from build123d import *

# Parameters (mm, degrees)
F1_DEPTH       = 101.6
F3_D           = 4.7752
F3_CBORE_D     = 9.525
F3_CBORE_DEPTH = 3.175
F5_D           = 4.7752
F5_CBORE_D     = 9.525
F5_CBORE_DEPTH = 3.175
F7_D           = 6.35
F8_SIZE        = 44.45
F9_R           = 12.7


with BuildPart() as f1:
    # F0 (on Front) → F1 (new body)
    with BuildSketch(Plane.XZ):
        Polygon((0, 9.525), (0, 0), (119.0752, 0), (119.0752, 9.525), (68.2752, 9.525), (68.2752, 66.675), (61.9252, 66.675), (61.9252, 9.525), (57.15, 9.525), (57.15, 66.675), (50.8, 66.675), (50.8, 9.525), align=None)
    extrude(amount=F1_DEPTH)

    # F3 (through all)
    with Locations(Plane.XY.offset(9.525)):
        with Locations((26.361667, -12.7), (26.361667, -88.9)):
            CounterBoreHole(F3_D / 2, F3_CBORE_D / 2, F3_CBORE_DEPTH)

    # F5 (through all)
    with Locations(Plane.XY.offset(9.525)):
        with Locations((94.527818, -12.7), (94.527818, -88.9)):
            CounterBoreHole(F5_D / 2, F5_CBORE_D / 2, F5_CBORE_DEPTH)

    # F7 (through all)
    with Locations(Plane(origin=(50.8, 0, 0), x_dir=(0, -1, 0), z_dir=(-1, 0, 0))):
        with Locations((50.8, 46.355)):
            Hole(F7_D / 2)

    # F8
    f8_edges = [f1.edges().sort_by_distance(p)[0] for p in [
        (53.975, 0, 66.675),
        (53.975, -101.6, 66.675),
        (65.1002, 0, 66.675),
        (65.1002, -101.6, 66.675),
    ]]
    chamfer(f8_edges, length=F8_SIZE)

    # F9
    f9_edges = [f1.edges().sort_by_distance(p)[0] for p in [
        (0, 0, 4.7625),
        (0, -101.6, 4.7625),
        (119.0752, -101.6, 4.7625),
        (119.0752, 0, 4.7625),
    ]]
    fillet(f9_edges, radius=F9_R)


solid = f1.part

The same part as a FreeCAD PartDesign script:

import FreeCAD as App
import Part
import Sketcher
from FreeCAD import Vector
Q = App.Units.Quantity


def edges_at(feature, points):
    """Names of the edges that pass closest to the given points."""
    edges = feature.Shape.Edges
    near = lambda p: min(range(len(edges)), key=lambda i: edges[i].distToShape(Part.Vertex(*p))[0])
    return sorted({f"Edge{near(p) + 1}" for p in points})


def add_polygon(sketch, points):
    """Adds a closed chain of lines whose ends are joined by coincident constraints."""
    first, n = sketch.GeometryCount, len(points)
    for a, b in zip(points, points[1:] + points[:1]):
        sketch.addGeometry(Part.LineSegment(App.Vector(*a, 0), App.Vector(*b, 0)), False)
    for i in range(n):
        sketch.addConstraint(Sketcher.Constraint("Coincident", first + i, 2, first + (i + 1) % n, 1))

doc = App.newDocument("Part")
body = doc.addObject("PartDesign::Body", "Body")

# Sketch on XZ plane
sketch1 = body.newObject("Sketcher::SketchObject", "Sketch")
sketch1.AttachmentSupport = (doc.getObject("XZ_Plane"), [""])
sketch1.MapMode = "FlatFace"
add_polygon(sketch1, [(0, 9.5), (0, 0), (119.1, 0), (119.1, 9.5), (68.3, 9.5), (68.3, 66.7), (61.9, 66.7), (61.9, 9.5), (57.1, 9.5), (57.1, 66.7), (50.8, 66.7), (50.8, 9.5)])  # lines 0-11
sketch1.addConstraint(Sketcher.Constraint("Vertical", 0))
sketch1.addConstraint(Sketcher.Constraint("Horizontal", 1))
sketch1.addConstraint(Sketcher.Constraint("Vertical", 2))
sketch1.addConstraint(Sketcher.Constraint("Horizontal", 3))
sketch1.addConstraint(Sketcher.Constraint("Vertical", 4))
sketch1.addConstraint(Sketcher.Constraint("Horizontal", 5))
sketch1.addConstraint(Sketcher.Constraint("Vertical", 6))
sketch1.addConstraint(Sketcher.Constraint("Horizontal", 7))
sketch1.addConstraint(Sketcher.Constraint("Vertical", 8))
sketch1.addConstraint(Sketcher.Constraint("Horizontal", 9))
sketch1.addConstraint(Sketcher.Constraint("Vertical", 10))
sketch1.addConstraint(Sketcher.Constraint("Horizontal", 11))
sketch1.addConstraint(Sketcher.Constraint("Coincident", 0, 2, -1, 1))
sketch1.addConstraint(Sketcher.Constraint("Horizontal", 3, 2, 6, 2))
sketch1.addConstraint(Sketcher.Constraint("Horizontal", 5, 2, 8, 2))
sketch1.addConstraint(Sketcher.Constraint("Horizontal", 7, 2, 10, 2))
sketch1.addConstraint(Sketcher.Constraint("Equal", 5, 9))
sketch1.addConstraint(Sketcher.Constraint("Equal", 3, 11))
sketch1.addConstraint(Sketcher.Constraint("DistanceX", 3, 2, 3, 1, Q("2 in")))
sketch1.addConstraint(Sketcher.Constraint("DistanceX", 5, 2, 5, 1, Q("0.25 in")))
sketch1.addConstraint(Sketcher.Constraint("DistanceY", 4, 1, 4, 2, Q("2.25 in")))
sketch1.addConstraint(Sketcher.Constraint("DistanceX", 1, 1, 1, 2, Q("4.688 in")))
sketch1.addConstraint(Sketcher.Constraint("DistanceY", 0, 2, 0, 1, Q("0.375 in")))
pad1 = body.newObject("PartDesign::Pad", "Pad")
pad1.Profile = sketch1
pad1.Length = Q("4 in")

# Sketch on XY plane
sketch2 = body.newObject("Sketcher::SketchObject", "Sketch001")
sketch2.AttachmentSupport = (doc.getObject("XY_Plane"), [""])
sketch2.MapMode = "FlatFace"
sketch2.AttachmentOffset = App.Placement(Vector(0, 0, 0.375 * 25.4), App.Rotation())
sketch2.addGeometry(Part.Circle(Vector(26.4, -12.7, 0), Vector(0, 0, 1), 2.4), False)
sketch2.addGeometry(Part.Circle(Vector(26.4, -88.9, 0), Vector(0, 0, 1), 2.4), False)
sketch2.addConstraint(Sketcher.Constraint("Equal", 0, 1))
sketch2.addConstraint(Sketcher.Constraint("Vertical", 0, 3, 1, 3))
sketch2.addConstraint(Sketcher.Constraint("Diameter", 0, Q("0.188 in")))
sketch2.addConstraint(Sketcher.Constraint("DistanceY", 1, 3, 0, 3, Q("3 in")))
sketch2.addConstraint(Sketcher.Constraint("DistanceY", 0, 3, -1, 1, Q("0.5 in")))
sketch2.addConstraint(Sketcher.Constraint("DistanceX", -1, 1, 0, 3, 26.361667))
doc.recompute()
hole = body.newObject("PartDesign::Hole", "Hole")
hole.Profile = sketch2
hole.ThreadType = "None"
hole.Diameter = Q("0.188 in")
hole.DepthType = "ThroughAll"
hole.HoleCutType = "Counterbore"
hole.HoleCutDiameter = Q("0.375 in")
hole.HoleCutDepth = Q("0.125 in")

# Sketch on XY plane
sketch3 = body.newObject("Sketcher::SketchObject", "Sketch002")
sketch3.AttachmentSupport = (doc.getObject("XY_Plane"), [""])
sketch3.MapMode = "FlatFace"
sketch3.AttachmentOffset = App.Placement(Vector(0, 0, 0.375 * 25.4), App.Rotation())
sketch3.addGeometry(Part.Circle(Vector(94.5, -12.7, 0), Vector(0, 0, 1), 2.4), False)
sketch3.addGeometry(Part.Circle(Vector(94.5, -88.9, 0), Vector(0, 0, 1), 2.4), False)
sketch3.addConstraint(Sketcher.Constraint("Equal", 0, 1))
sketch3.addConstraint(Sketcher.Constraint("Vertical", 0, 3, 1, 3))
sketch3.addConstraint(Sketcher.Constraint("Diameter", 0, Q("0.188 in")))
sketch3.addConstraint(Sketcher.Constraint("DistanceY", 1, 3, 0, 3, Q("3 in")))
sketch3.addConstraint(Sketcher.Constraint("DistanceY", 0, 3, -1, 1, Q("0.5 in")))
sketch3.addConstraint(Sketcher.Constraint("DistanceX", -1, 1, 0, 3, 94.527818))
doc.recompute()
hole2 = body.newObject("PartDesign::Hole", "Hole001")
hole2.Profile = sketch3
hole2.ThreadType = "None"
hole2.Diameter = Q("0.188 in")
hole2.DepthType = "ThroughAll"
hole2.HoleCutType = "Counterbore"
hole2.HoleCutDiameter = Q("0.375 in")
hole2.HoleCutDepth = Q("0.125 in")

# Sketch on YZ plane
sketch4 = body.newObject("Sketcher::SketchObject", "Sketch003")
sketch4.AttachmentSupport = (doc.getObject("YZ_Plane"), [""])
sketch4.MapMode = "FlatFace"
sketch4.AttachmentOffset = App.Placement(Vector(0, 0, 2 * 25.4), App.Rotation())
sketch4.addGeometry(Part.Circle(Vector(-50.8, 46.4, 0), Vector(0, 0, 1), 3.2), False)
sketch4.addConstraint(Sketcher.Constraint("Diameter", 0, Q("0.25 in")))
sketch4.addConstraint(Sketcher.Constraint("DistanceX", 0, 3, -1, 1, Q("2 in")))
sketch4.addConstraint(Sketcher.Constraint("DistanceY", -1, 1, 0, 3, Q("1.825 in")))
doc.recompute()
hole3 = body.newObject("PartDesign::Hole", "Hole002")
hole3.Profile = sketch4
hole3.ThreadType = "None"
hole3.Diameter = Q("0.25 in")
hole3.DepthType = "ThroughAll"
hole3.Reversed = True
doc.recompute()

chamfer = body.newObject("PartDesign::Chamfer", "Chamfer")
chamfer.Base = (hole3, edges_at(hole3, [
    (53.975, 0, 66.675),
    (53.975, -101.6, 66.675),
    (65.1, 0, 66.675),
    (65.1, -101.6, 66.675),
]))
chamfer.Size = Q("1.75 in")
doc.recompute()

fillet = body.newObject("PartDesign::Fillet", "Fillet")
fillet.Base = (chamfer, edges_at(chamfer, [
    (0, 0, 4.763),
    (0, -101.6, 4.763),
    (119.075, -101.6, 4.763),
    (119.075, 0, 4.763),
]))
fillet.Radius = Q("0.5 in")

doc.recompute()
